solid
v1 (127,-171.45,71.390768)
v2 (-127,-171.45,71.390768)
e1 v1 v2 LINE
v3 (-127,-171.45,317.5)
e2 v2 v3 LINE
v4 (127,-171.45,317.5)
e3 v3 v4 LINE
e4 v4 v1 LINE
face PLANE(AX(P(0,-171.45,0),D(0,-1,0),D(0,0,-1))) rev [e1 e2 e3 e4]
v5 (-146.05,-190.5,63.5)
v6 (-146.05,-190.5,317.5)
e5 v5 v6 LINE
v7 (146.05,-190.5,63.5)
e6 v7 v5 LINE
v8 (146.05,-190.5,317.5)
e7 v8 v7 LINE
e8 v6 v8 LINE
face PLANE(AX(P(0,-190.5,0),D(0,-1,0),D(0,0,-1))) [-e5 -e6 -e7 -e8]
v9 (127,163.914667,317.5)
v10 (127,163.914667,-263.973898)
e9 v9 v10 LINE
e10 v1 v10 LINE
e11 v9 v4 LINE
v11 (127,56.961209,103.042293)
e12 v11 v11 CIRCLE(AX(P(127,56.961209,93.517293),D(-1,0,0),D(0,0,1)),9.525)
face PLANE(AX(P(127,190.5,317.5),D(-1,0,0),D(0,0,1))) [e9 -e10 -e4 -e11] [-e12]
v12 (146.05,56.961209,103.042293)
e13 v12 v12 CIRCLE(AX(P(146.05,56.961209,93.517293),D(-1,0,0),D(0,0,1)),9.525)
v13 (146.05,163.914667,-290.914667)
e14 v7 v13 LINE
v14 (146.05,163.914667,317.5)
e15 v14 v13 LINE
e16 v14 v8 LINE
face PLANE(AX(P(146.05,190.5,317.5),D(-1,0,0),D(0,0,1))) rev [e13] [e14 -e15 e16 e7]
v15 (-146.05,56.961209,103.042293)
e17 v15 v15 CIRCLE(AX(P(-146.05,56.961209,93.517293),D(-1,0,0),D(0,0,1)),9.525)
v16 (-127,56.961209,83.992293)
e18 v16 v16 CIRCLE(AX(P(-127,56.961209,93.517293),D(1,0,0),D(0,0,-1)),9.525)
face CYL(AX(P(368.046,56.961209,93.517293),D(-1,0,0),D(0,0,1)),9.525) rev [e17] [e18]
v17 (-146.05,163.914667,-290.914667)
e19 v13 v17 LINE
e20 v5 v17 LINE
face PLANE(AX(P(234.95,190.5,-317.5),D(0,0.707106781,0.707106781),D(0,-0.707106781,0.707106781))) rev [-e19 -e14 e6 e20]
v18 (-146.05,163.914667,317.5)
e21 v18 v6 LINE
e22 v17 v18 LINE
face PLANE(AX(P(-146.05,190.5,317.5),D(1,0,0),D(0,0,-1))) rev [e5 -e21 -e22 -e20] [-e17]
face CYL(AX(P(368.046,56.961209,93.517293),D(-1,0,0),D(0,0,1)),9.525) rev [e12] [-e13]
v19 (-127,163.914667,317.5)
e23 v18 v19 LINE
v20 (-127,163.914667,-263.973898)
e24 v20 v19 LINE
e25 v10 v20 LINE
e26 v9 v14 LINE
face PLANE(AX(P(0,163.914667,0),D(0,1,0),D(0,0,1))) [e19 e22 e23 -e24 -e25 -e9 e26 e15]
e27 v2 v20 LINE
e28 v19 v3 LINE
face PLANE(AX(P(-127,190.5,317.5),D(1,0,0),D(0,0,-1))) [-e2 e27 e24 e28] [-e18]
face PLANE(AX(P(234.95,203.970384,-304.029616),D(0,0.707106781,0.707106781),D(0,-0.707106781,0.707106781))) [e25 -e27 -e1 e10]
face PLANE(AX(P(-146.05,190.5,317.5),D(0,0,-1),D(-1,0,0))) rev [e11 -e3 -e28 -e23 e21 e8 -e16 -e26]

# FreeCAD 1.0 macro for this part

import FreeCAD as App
import Part
import Sketcher
from FreeCAD import Vector
Q = App.Units.Quantity


def faces_at(feature, points):
    """Names of the faces that lie closest to the given points."""
    faces = feature.Shape.Faces
    near = lambda p: min(range(len(faces)), key=lambda i: faces[i].distToShape(Part.Vertex(*p))[0])
    return sorted({f"Face{near(p) + 1}" for p in points})

doc = App.newDocument("Part")
params = doc.addObject("Spreadsheet::Sheet", "Params")
for row, (alias, value) in enumerate([
    ("sketch1_height", "25 in"),
    ("sketch1_width", "11.5 in"),
    ("pad1_length", "15 in"),
    ("sketch2_width", "15 in"),
    ("pocket1_length", "15 in"),
    ("thickness_wall", "0.75 in"),
    ("sketch3_height", "25 in"),
    ("sketch3_width", "11.5 in"),
    ("pocket2_length", "0.98 in"),
    ("sketch4_diameter", "0.75 in"),
    ("pocket3_length", "20.24 in"),
    ("sketch5_width", "11.5 in"),
    ("sketch5_height", "24.02 in"),
    ("pocket4_length", "1.693333 mm"),
], start=1):
    params.set(f"A{row}", alias)
    params.set(f"B{row}", "=" + value)
    params.setAlias(f"B{row}", alias)

body = doc.addObject("PartDesign::Body", "Body")

# Sketch on XZ plane
sketch1 = doc.addObject("Sketcher::SketchObject", "Sketch")
body.addObject(sketch1)
sketch1.AttachmentSupport = (doc.XZ_Plane, [""])
sketch1.MapMode = "FlatFace"
sketch1.addGeometry([
    Part.LineSegment(Vector(-146, -318, 0), Vector(-146, 318, 0)),
    Part.LineSegment(Vector(-146, 318, 0), Vector(146, 318, 0)),
    Part.LineSegment(Vector(146, 318, 0), Vector(146, -318, 0)),
    Part.LineSegment(Vector(146, -318, 0), Vector(-146, -318, 0)),
], False)
sketch1.addConstraint([
    Sketcher.Constraint("Coincident", 0, 2, 1, 1),
    Sketcher.Constraint("Coincident", 1, 2, 2, 1),
    Sketcher.Constraint("Coincident", 2, 2, 3, 1),
    Sketcher.Constraint("Coincident", 3, 2, 0, 1),
    Sketcher.Constraint("Vertical", 0),
    Sketcher.Constraint("Horizontal", 1),
    Sketcher.Constraint("Vertical", 2),
    Sketcher.Constraint("Horizontal", 3),
    Sketcher.Constraint("Symmetric", 0, 2, 2, 2, -1, 1),
    Sketcher.Constraint("DistanceY", 0, 1, 0, 2, Q("25 in")),
    Sketcher.Constraint("DistanceX", 1, 1, 1, 2, Q("11.5 in")),
])
sketch1.setExpression("Constraints[9]", "Params.sketch1_height")
sketch1.setExpression("Constraints[10]", "Params.sketch1_width")
pad1 = doc.addObject("PartDesign::Pad", "Pad")
body.addObject(pad1)
pad1.Profile = sketch1
pad1.setExpression("Length", "Params.pad1_length")
pad1.Midplane = True

# Sketch on YZ plane
sketch2 = doc.addObject("Sketcher::SketchObject", "Sketch001")
body.addObject(sketch2)
sketch2.AttachmentSupport = (doc.YZ_Plane, [""])
sketch2.MapMode = "FlatFace"
sketch2.AttachmentOffset = App.Placement(Vector(0, 0, -5.75 * 25.4), App.Rotation())
sketch2.addGeometry([
    Part.LineSegment(Vector(-190, 64, 0), Vector(190, -318, 0)),
    Part.LineSegment(Vector(190, -318, 0), Vector(-190, -318, 0)),
    Part.LineSegment(Vector(-190, -318, 0), Vector(-190, 64, 0)),
], False)
sketch2.addConstraint([
    Sketcher.Constraint("Coincident", 0, 2, 1, 1),
    Sketcher.Constraint("Coincident", 1, 2, 2, 1),
    Sketcher.Constraint("Coincident", 2, 2, 0, 1),
    Sketcher.Constraint("Horizontal", 1),
    Sketcher.Constraint("Vertical", 2),
    Sketcher.Constraint("Equal", 1, 2),
    Sketcher.Constraint("DistanceX", 1, 2, 1, 1, Q("15 in")),
    Sketcher.Constraint("DistanceX", -1, 1, 0, 2, Q("7.5 in")),
    Sketcher.Constraint("DistanceY", 0, 2, -1, 1, Q("12.5 in")),
])
sketch2.setExpression("Constraints[6]", "Params.sketch2_width")
pocket1 = doc.addObject("PartDesign::Pocket", "Pocket")
body.addObject(pocket1)
pocket1.Profile = sketch2
pocket1.setExpression("Length", "Params.pocket1_length")
pocket1.Reversed = True
doc.recompute()

thickness = doc.addObject("PartDesign::Thickness", "Thickness")
body.addObject(thickness)
thickness.Base = (pocket1, faces_at(pocket1, [(0, 0, 317.5)]))
thickness.setExpression("Value", "Params.thickness_wall")
thickness.Reversed = True
thickness.Join = "Intersection"

# Sketch on XZ plane
sketch3 = doc.addObject("Sketcher::SketchObject", "Sketch002")
body.addObject(sketch3)
sketch3.AttachmentSupport = (doc.XZ_Plane, [""])
sketch3.MapMode = "FlatFace"
sketch3.AttachmentOffset = App.Placement(Vector(0, 0, -7.5 * 25.4), App.Rotation())
sketch3.addGeometry([
    Part.LineSegment(Vector(-146, -318, 0), Vector(-146, 318, 0)),
    Part.LineSegment(Vector(-146, 318, 0), Vector(146, 318, 0)),
    Part.LineSegment(Vector(146, 318, 0), Vector(146, -318, 0)),
    Part.LineSegment(Vector(146, -318, 0), Vector(-146, -318, 0)),
], False)
sketch3.addConstraint([
    Sketcher.Constraint("Coincident", 0, 2, 1, 1),
    Sketcher.Constraint("Coincident", 1, 2, 2, 1),
    Sketcher.Constraint("Coincident", 2, 2, 3, 1),
    Sketcher.Constraint("Coincident", 3, 2, 0, 1),
    Sketcher.Constraint("Vertical", 0),
    Sketcher.Constraint("Horizontal", 1),
    Sketcher.Constraint("Vertical", 2),
    Sketcher.Constraint("Horizontal", 3),
    Sketcher.Constraint("Symmetric", 0, 2, 2, 2, -1, 1),
    Sketcher.Constraint("DistanceY", 0, 1, 0, 2, Q("25 in")),
    Sketcher.Constraint("DistanceX", 1, 1, 1, 2, Q("11.5 in")),
])
sketch3.setExpression("Constraints[9]", "Params.sketch3_height")
sketch3.setExpression("Constraints[10]", "Params.sketch3_width")
pocket2 = doc.addObject("PartDesign::Pocket", "Pocket001")
body.addObject(pocket2)
pocket2.Profile = sketch3
pocket2.setExpression("Length", "Params.pocket2_length")
pocket2.Reversed = True

# Sketch on YZ plane
sketch4 = doc.addObject("Sketcher::SketchObject", "Sketch003")
body.addObject(sketch4)
sketch4.AttachmentSupport = (doc.YZ_Plane, [""])
sketch4.MapMode = "FlatFace"
sketch4.AttachmentOffset = App.Placement(Vector(0, 0, -5.75 * 25.4), App.Rotation())
sketch4.addGeometry(Part.Circle(Vector(57, 94, 0), Vector(0, 0, 1), 10), False)
sketch4.addConstraint([
    Sketcher.Constraint("Diameter", 0, Q("0.75 in")),
    Sketcher.Constraint("DistanceX", -1, 1, 0, 3, Q("56.961209 mm")),
    Sketcher.Constraint("DistanceY", -1, 1, 0, 3, Q("93.517293 mm")),
])
sketch4.setExpression("Constraints[0]", "Params.sketch4_diameter")
pocket3 = doc.addObject("PartDesign::Pocket", "Pocket002")
body.addObject(pocket3)
pocket3.Profile = sketch4
pocket3.setExpression("Length", "Params.pocket3_length")
pocket3.Reversed = True

# Sketch on XZ plane
sketch5 = doc.addObject("Sketcher::SketchObject", "Sketch004")
body.addObject(sketch5)
sketch5.AttachmentSupport = (doc.XZ_Plane, [""])
sketch5.MapMode = "FlatFace"
sketch5.AttachmentOffset = App.Placement(Vector(0, 0, -6.52 * 25.4), App.Rotation())
sketch5.addGeometry([
    Part.LineSegment(Vector(-146, -293, 0), Vector(-146, 318, 0)),
    Part.LineSegment(Vector(-146, 318, 0), Vector(146, 318, 0)),
    Part.LineSegment(Vector(146, 318, 0), Vector(146, -293, 0)),
    Part.LineSegment(Vector(146, -293, 0), Vector(-146, -293, 0)),
], False)
sketch5.addConstraint([
    Sketcher.Constraint("Coincident", 0, 2, 1, 1),
    Sketcher.Constraint("Coincident", 1, 2, 2, 1),
    Sketcher.Constraint("Coincident", 2, 2, 3, 1),
    Sketcher.Constraint("Coincident", 3, 2, 0, 1),
    Sketcher.Constraint("Vertical", 0),
    Sketcher.Constraint("Horizontal", 1),
    Sketcher.Constraint("Vertical", 2),
    Sketcher.Constraint("Horizontal", 3),
    Sketcher.Constraint("DistanceX", 1, 1, 1, 2, Q("11.5 in")),
    Sketcher.Constraint("DistanceY", 0, 1, 0, 2, Q("24.02 in")),
    Sketcher.Constraint("DistanceY", -1, 1, 0, 2, Q("12.5 in")),
    Sketcher.Constraint("DistanceX", 0, 2, -1, 1, Q("5.75 in")),
])
sketch5.setExpression("Constraints[8]", "Params.sketch5_width")
sketch5.setExpression("Constraints[9]", "Params.sketch5_height")
pocket4 = doc.addObject("PartDesign::Pocket", "Pocket003")
body.addObject(pocket4)
pocket4.Profile = sketch5
pocket4.setExpression("Length", "Params.pocket4_length")
pocket4.Reversed = True

doc.recompute()
